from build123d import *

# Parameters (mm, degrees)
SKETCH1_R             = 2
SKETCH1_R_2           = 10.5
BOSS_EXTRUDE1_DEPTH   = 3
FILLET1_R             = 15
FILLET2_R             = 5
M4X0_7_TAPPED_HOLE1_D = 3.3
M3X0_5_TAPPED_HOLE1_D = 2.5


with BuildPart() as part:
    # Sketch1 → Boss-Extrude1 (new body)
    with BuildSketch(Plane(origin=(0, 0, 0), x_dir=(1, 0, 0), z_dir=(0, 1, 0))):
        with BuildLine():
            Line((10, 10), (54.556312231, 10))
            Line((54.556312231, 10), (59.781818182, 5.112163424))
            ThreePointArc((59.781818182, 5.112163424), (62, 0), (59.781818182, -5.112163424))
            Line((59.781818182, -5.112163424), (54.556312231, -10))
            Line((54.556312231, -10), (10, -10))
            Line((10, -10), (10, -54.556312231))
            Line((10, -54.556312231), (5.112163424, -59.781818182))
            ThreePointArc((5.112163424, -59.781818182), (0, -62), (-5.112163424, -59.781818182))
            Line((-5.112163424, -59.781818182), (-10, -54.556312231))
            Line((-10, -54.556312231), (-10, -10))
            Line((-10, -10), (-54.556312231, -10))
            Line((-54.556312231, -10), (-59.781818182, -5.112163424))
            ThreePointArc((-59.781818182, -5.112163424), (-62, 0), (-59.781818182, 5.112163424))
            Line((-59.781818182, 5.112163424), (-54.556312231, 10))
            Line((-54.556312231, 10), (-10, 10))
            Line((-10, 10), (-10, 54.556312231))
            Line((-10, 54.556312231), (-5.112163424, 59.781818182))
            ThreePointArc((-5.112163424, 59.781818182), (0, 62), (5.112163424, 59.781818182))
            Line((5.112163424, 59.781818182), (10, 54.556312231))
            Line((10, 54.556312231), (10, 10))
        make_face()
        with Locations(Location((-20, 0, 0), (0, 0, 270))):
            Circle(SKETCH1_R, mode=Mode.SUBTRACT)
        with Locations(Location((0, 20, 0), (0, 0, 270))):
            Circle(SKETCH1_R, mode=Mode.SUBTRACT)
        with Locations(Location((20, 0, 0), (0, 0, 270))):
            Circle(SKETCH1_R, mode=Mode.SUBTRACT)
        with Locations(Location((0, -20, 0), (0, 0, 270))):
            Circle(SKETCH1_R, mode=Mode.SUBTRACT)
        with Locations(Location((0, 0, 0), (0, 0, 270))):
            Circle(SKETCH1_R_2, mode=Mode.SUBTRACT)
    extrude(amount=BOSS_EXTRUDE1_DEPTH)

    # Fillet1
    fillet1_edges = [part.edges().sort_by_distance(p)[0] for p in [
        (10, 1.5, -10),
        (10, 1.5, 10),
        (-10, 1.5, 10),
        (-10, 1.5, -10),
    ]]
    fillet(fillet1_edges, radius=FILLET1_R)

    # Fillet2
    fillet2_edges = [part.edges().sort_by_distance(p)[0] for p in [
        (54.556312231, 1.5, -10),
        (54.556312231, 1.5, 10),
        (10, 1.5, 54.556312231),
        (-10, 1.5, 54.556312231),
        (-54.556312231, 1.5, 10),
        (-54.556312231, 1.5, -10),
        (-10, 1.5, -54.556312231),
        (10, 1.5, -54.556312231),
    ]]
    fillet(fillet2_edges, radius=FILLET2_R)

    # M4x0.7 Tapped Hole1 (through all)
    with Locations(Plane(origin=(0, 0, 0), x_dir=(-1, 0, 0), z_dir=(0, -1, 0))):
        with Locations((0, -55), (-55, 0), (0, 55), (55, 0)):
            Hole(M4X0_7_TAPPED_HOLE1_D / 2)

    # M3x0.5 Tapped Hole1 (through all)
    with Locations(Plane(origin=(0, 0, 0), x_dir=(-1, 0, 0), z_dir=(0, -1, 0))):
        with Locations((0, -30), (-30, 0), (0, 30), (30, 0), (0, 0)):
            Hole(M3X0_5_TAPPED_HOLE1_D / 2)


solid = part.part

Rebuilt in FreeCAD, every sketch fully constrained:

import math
import FreeCAD as App
import Part
import Sketcher


def edges_at(feature, points):
    """Names of the edges that pass closest to the given points."""
    edges = feature.Shape.Edges
    near = lambda p: min(range(len(edges)), key=lambda i: edges[i].distToShape(Part.Vertex(*p))[0])
    return sorted({f"Edge{near(p) + 1}" for p in points})

doc = App.newDocument("Part")
params = doc.addObject("Spreadsheet::Sheet", "Params")
for row, (alias, value) in enumerate([
    ("sketch1_diameter", "4 mm"),
    ("sketch1_diameter2", "21 mm"),
    ("sketch1_radius", "7 mm"),
    ("pad1_length", "3 mm"),
    ("fillet_radius", "15 mm"),
    ("fillet2_radius", "5 mm"),
    ("sketch2_diameter", "3.3 mm"),
    ("hole_diameter", "3.3 mm"),
    ("sketch3_diameter", "2.5 mm"),
    ("hole2_diameter", "2.5 mm"),
], start=1):
    params.set(f"A{row}", alias)
    params.set(f"B{row}", "=" + value)
    params.setAlias(f"B{row}", alias)

body = doc.addObject("PartDesign::Body", "Body")

# Sketch on XZ plane
sketch1 = body.newObject("Sketcher::SketchObject", "Sketch")
sketch1.AttachmentSupport = (doc.getObject("XZ_Plane"), [""])
sketch1.MapMode = "FlatFace"
sketch1.addGeometry(Part.LineSegment(App.Vector(54.556312, -10, 0), App.Vector(10, -10, 0)), False)
sketch1.addGeometry(Part.LineSegment(App.Vector(10, -10, 0), App.Vector(10, -54.556312, 0)), False)
sketch1.addGeometry(Part.LineSegment(App.Vector(10, -54.556312, 0), App.Vector(5.112163, -59.781818, 0)), False)
sketch1.addGeometry(Part.ArcOfCircle(Part.Circle(App.Vector(0, -55, 0), App.Vector(0, 0, 1), 7), math.radians(-136.91231), math.radians(-43.08769)), False)
sketch1.addGeometry(Part.LineSegment(App.Vector(-5.112163, -59.781818, 0), App.Vector(-10, -54.556312, 0)), False)
sketch1.addGeometry(Part.LineSegment(App.Vector(-10, -54.556312, 0), App.Vector(-10, -10, 0)), False)
sketch1.addGeometry(Part.LineSegment(App.Vector(-10, -10, 0), App.Vector(-54.556312, -10, 0)), False)
sketch1.addGeometry(Part.LineSegment(App.Vector(-54.556312, -10, 0), App.Vector(-59.781818, -5.112163, 0)), False)
sketch1.addGeometry(Part.ArcOfCircle(Part.Circle(App.Vector(-55, 0, 0), App.Vector(0, 0, 1), 7), math.radians(133.08769), math.radians(226.91231)), False)
sketch1.addGeometry(Part.LineSegment(App.Vector(-59.781818, 5.112163, 0), App.Vector(-54.556312, 10, 0)), False)
sketch1.addGeometry(Part.LineSegment(App.Vector(-54.556312, 10, 0), App.Vector(-10, 10, 0)), False)
sketch1.addGeometry(Part.LineSegment(App.Vector(-10, 10, 0), App.Vector(-10, 54.556312, 0)), False)
sketch1.addGeometry(Part.LineSegment(App.Vector(-10, 54.556312, 0), App.Vector(-5.112163, 59.781818, 0)), False)
sketch1.addGeometry(Part.ArcOfCircle(Part.Circle(App.Vector(0, 55, 0), App.Vector(0, 0, 1), 7), math.radians(43.08769), math.radians(136.91231)), False)
sketch1.addGeometry(Part.LineSegment(App.Vector(5.112163, 59.781818, 0), App.Vector(10, 54.556312, 0)), False)
sketch1.addGeometry(Part.LineSegment(App.Vector(10, 54.556312, 0), App.Vector(10, 10, 0)), False)
sketch1.addGeometry(Part.LineSegment(App.Vector(10, 10, 0), App.Vector(54.556312, 10, 0)), False)
sketch1.addGeometry(Part.LineSegment(App.Vector(54.556312, 10, 0), App.Vector(59.781818, 5.112163, 0)), False)
sketch1.addGeometry(Part.ArcOfCircle(Part.Circle(App.Vector(55, 0, 0), App.Vector(0, 0, 1), 7), math.radians(-46.91231), math.radians(46.91231)), False)
sketch1.addGeometry(Part.LineSegment(App.Vector(59.781818, -5.112163, 0), App.Vector(54.556312, -10, 0)), False)
sketch1.addGeometry(Part.Circle(App.Vector(0, 20, 0), App.Vector(0, 0, 1), 2), False)
sketch1.addGeometry(Part.Circle(App.Vector(20, 0, 0), App.Vector(0, 0, 1), 2), False)
sketch1.addGeometry(Part.Circle(App.Vector(0, 0, 0), App.Vector(0, 0, 1), 10.5), False)
sketch1.addGeometry(Part.Circle(App.Vector(-20, 0, 0), App.Vector(0, 0, 1), 2), False)
sketch1.addGeometry(Part.Circle(App.Vector(0, -20, 0), App.Vector(0, 0, 1), 2), False)
sketch1.addConstraint(Sketcher.Constraint("Coincident", 0, 2, 1, 1))
sketch1.addConstraint(Sketcher.Constraint("Coincident", 1, 2, 2, 1))
sketch1.addConstraint(Sketcher.Constraint("Tangent", 2, 2, 3, 2))
sketch1.addConstraint(Sketcher.Constraint("Tangent", 3, 1, 4, 1))
sketch1.addConstraint(Sketcher.Constraint("Coincident", 4, 2, 5, 1))
sketch1.addConstraint(Sketcher.Constraint("Coincident", 5, 2, 6, 1))
sketch1.addConstraint(Sketcher.Constraint("Coincident", 6, 2, 7, 1))
sketch1.addConstraint(Sketcher.Constraint("Tangent", 7, 2, 8, 2))
sketch1.addConstraint(Sketcher.Constraint("Tangent", 8, 1, 9, 1))
sketch1.addConstraint(Sketcher.Constraint("Coincident", 9, 2, 10, 1))
sketch1.addConstraint(Sketcher.Constraint("Coincident", 10, 2, 11, 1))
sketch1.addConstraint(Sketcher.Constraint("Coincident", 11, 2, 12, 1))
sketch1.addConstraint(Sketcher.Constraint("Tangent", 12, 2, 13, 2))
sketch1.addConstraint(Sketcher.Constraint("Tangent", 13, 1, 14, 1))
sketch1.addConstraint(Sketcher.Constraint("Coincident", 14, 2, 15, 1))
sketch1.addConstraint(Sketcher.Constraint("Coincident", 15, 2, 16, 1))
sketch1.addConstraint(Sketcher.Constraint("Coincident", 16, 2, 17, 1))
sketch1.addConstraint(Sketcher.Constraint("Tangent", 17, 2, 18, 2))
sketch1.addConstraint(Sketcher.Constraint("Tangent", 18, 1, 19, 1))
sketch1.addConstraint(Sketcher.Constraint("Coincident", 19, 2, 0, 1))
sketch1.addConstraint(Sketcher.Constraint("Horizontal", 0))
sketch1.addConstraint(Sketcher.Constraint("Vertical", 1))
sketch1.addConstraint(Sketcher.Constraint("Vertical", 5))
sketch1.addConstraint(Sketcher.Constraint("Horizontal", 6))
sketch1.addConstraint(Sketcher.Constraint("Horizontal", 10))
sketch1.addConstraint(Sketcher.Constraint("Vertical", 11))
sketch1.addConstraint(Sketcher.Constraint("Vertical", 15))
sketch1.addConstraint(Sketcher.Constraint("Horizontal", 16))
sketch1.addConstraint(Sketcher.Constraint("Coincident", 22, 3, -1, 1))
sketch1.addConstraint(Sketcher.Constraint("Equal", 3, 8))
sketch1.addConstraint(Sketcher.Constraint("Equal", 8, 13))
sketch1.addConstraint(Sketcher.Constraint("Equal", 13, 18))
sketch1.addConstraint(Sketcher.Constraint("Equal", 20, 21))
sketch1.addConstraint(Sketcher.Constraint("Equal", 21, 23))
sketch1.addConstraint(Sketcher.Constraint("Equal", 23, 24))
sketch1.addConstraint(Sketcher.Constraint("Symmetric", 3, 3, 13, 3, -1, 1))
sketch1.addConstraint(Sketcher.Constraint("Symmetric", 8, 3, 18, 3, -1, 1))
sketch1.addConstraint(Sketcher.Constraint("Symmetric", 21, 3, 23, 3, -1, 1))
sketch1.addConstraint(Sketcher.Constraint("Symmetric", 20, 3, 24, 3, -1, 1))
sketch1.addConstraint(Sketcher.Constraint("Symmetric", 0, 2, 10, 2, -1, 1))
sketch1.addConstraint(Sketcher.Constraint("Symmetric", 4, 2, 14, 2, -1, 1))
sketch1.addConstraint(Sketcher.Constraint("Symmetric", 6, 2, 16, 2, -1, 1))
sketch1.addConstraint(Sketcher.Constraint("Symmetric", 2, 2, 3, 1, -2))
sketch1.addConstraint(Sketcher.Constraint("Symmetric", 0, 2, 5, 2, -2))
sketch1.addConstraint(Sketcher.Constraint("Symmetric", 8, 1, 17, 2, -2))
sketch1.addConstraint(Sketcher.Constraint("PointOnObject", 20, 3, -2))
sketch1.addConstraint(Sketcher.Constraint("PointOnObject", 21, 3, -1))
sketch1.addConstraint(Sketcher.Constraint("Perpendicular", 2, 7))
sketch1.addConstraint(Sketcher.Constraint("Perpendicular", 7, 12))
sketch1.addConstraint(Sketcher.Constraint("Perpendicular", 14, 19))
sketch1.addConstraint(Sketcher.Constraint("Equal", 16, 1))
sketch1.addConstraint(Sketcher.Constraint("Equal", 4, 7))
sketch1.addConstraint(Sketcher.Constraint("Diameter", 20, 4.0))
sketch1.addConstraint(Sketcher.Constraint("Diameter", 22, 21.0))
sketch1.addConstraint(Sketcher.Constraint("Radius", 3, 7.0))
sketch1.addConstraint(Sketcher.Constraint("DistanceY", 3, 3, -1, 1, 55.0))
sketch1.addConstraint(Sketcher.Constraint("DistanceY", -1, 1, 20, 3, 20.0))
sketch1.addConstraint(Sketcher.Constraint("DistanceX", -1, 1, 21, 3, 20.0))
sketch1.addConstraint(Sketcher.Constraint("DistanceX", -1, 1, 0, 2, 10.0))
sketch1.addConstraint(Sketcher.Constraint("Distance", 2, 7.155198))
sketch1.setExpression("Constraints[52]", "Params.sketch1_diameter")
sketch1.setExpression("Constraints[53]", "Params.sketch1_diameter2")
sketch1.setExpression("Constraints[54]", "Params.sketch1_radius")
pad1 = body.newObject("PartDesign::Pad", "Pad")
pad1.Profile = sketch1
pad1.setExpression("Length", "Params.pad1_length")
pad1.Reversed = True
doc.recompute()

fillet = body.newObject("PartDesign::Fillet", "Fillet")
fillet.Base = (pad1, edges_at(pad1, [
    (10, 1.5, -10),
    (10, 1.5, 10),
    (-10, 1.5, 10),
    (-10, 1.5, -10),
]))
fillet.setExpression("Radius", "Params.fillet_radius")
doc.recompute()

fillet2 = body.newObject("PartDesign::Fillet", "Fillet001")
fillet2.Base = (fillet, edges_at(fillet, [
    (54.556, 1.5, -10),
    (54.556, 1.5, 10),
    (10, 1.5, 54.556),
    (-10, 1.5, 54.556),
    (-54.556, 1.5, 10),
    (-54.556, 1.5, -10),
    (-10, 1.5, -54.556),
    (10, 1.5, -54.556),
]))
fillet2.setExpression("Radius", "Params.fillet2_radius")

# Sketch on XZ plane
sketch2 = body.newObject("Sketcher::SketchObject", "Sketch001")
sketch2.AttachmentSupport = (doc.getObject("XZ_Plane"), [""])
sketch2.MapMode = "FlatFace"
sketch2.addGeometry(Part.Circle(App.Vector(0, 55, 0), App.Vector(0, 0, 1), 1.65), False)
sketch2.addGeometry(Part.Circle(App.Vector(55, 0, 0), App.Vector(0, 0, 1), 1.65), False)
sketch2.addGeometry(Part.Circle(App.Vector(0, -55, 0), App.Vector(0, 0, 1), 1.65), False)
sketch2.addGeometry(Part.Circle(App.Vector(-55, 0, 0), App.Vector(0, 0, 1), 1.65), False)
sketch2.addConstraint(Sketcher.Constraint("Equal", 0, 1))
sketch2.addConstraint(Sketcher.Constraint("Equal", 1, 2))
sketch2.addConstraint(Sketcher.Constraint("Equal", 2, 3))
sketch2.addConstraint(Sketcher.Constraint("Symmetric", 0, 3, 2, 3, -1, 1))
sketch2.addConstraint(Sketcher.Constraint("Symmetric", 1, 3, 3, 3, -1, 1))
sketch2.addConstraint(Sketcher.Constraint("PointOnObject", 0, 3, -2))
sketch2.addConstraint(Sketcher.Constraint("PointOnObject", 1, 3, -1))
sketch2.addConstraint(Sketcher.Constraint("Diameter", 0, 3.3))
sketch2.addConstraint(Sketcher.Constraint("DistanceY", -1, 1, 0, 3, 55.0))
sketch2.addConstraint(Sketcher.Constraint("DistanceX", -1, 1, 1, 3, 55.0))
sketch2.setExpression("Constraints[7]", "Params.sketch2_diameter")
doc.recompute()
hole = body.newObject("PartDesign::Hole", "Hole")
hole.Profile = sketch2
hole.ThreadType = "None"
hole.setExpression("Diameter", "Params.hole_diameter")
hole.DepthType = "ThroughAll"

# Sketch on XZ plane
sketch3 = body.newObject("Sketcher::SketchObject", "Sketch002")
sketch3.AttachmentSupport = (doc.getObject("XZ_Plane"), [""])
sketch3.MapMode = "FlatFace"
sketch3.addGeometry(Part.Circle(App.Vector(0, 30, 0), App.Vector(0, 0, 1), 1.25), False)
sketch3.addGeometry(Part.Circle(App.Vector(30, 0, 0), App.Vector(0, 0, 1), 1.25), False)
sketch3.addGeometry(Part.Circle(App.Vector(0, -30, 0), App.Vector(0, 0, 1), 1.25), False)
sketch3.addGeometry(Part.Circle(App.Vector(-30, 0, 0), App.Vector(0, 0, 1), 1.25), False)
sketch3.addGeometry(Part.Circle(App.Vector(0, 0, 0), App.Vector(0, 0, 1), 1.25), False)
sketch3.addConstraint(Sketcher.Constraint("Coincident", 4, 3, -1, 1))
sketch3.addConstraint(Sketcher.Constraint("Equal", 0, 1))
sketch3.addConstraint(Sketcher.Constraint("Equal", 1, 2))
sketch3.addConstraint(Sketcher.Constraint("Equal", 2, 3))
sketch3.addConstraint(Sketcher.Constraint("Equal", 3, 4))
sketch3.addConstraint(Sketcher.Constraint("Symmetric", 0, 3, 2, 3, -1, 1))
sketch3.addConstraint(Sketcher.Constraint("Symmetric", 1, 3, 3, 3, -1, 1))
sketch3.addConstraint(Sketcher.Constraint("PointOnObject", 0, 3, -2))
sketch3.addConstraint(Sketcher.Constraint("PointOnObject", 1, 3, -1))
sketch3.addConstraint(Sketcher.Constraint("Diameter", 0, 2.5))
sketch3.addConstraint(Sketcher.Constraint("DistanceY", -1, 1, 0, 3, 30.0))
sketch3.addConstraint(Sketcher.Constraint("DistanceX", -1, 1, 1, 3, 30.0))
sketch3.setExpression("Constraints[9]", "Params.sketch3_diameter")
doc.recompute()
hole2 = body.newObject("PartDesign::Hole", "Hole001")
hole2.Profile = sketch3
hole2.ThreadType = "None"
hole2.setExpression("Diameter", "Params.hole2_diameter")
hole2.DepthType = "ThroughAll"

doc.recompute()
